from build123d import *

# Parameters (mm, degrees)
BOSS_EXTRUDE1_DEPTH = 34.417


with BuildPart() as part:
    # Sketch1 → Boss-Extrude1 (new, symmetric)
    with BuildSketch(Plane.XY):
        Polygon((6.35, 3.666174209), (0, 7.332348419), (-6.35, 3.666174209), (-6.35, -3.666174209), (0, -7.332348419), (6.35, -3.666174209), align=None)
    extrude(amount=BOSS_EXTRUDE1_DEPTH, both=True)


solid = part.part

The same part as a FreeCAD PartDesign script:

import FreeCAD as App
import Part
import Sketcher
Q = App.Units.Quantity

doc = App.newDocument("Part")
body = doc.addObject("PartDesign::Body", "Body")

sketch1 = body.newObject("Sketcher::SketchObject", "Sketch")
sketch1.AttachmentSupport = (doc.getObject("XY_Plane"), [""])
sketch1.MapMode = "FlatFace"
sketch1.addGeometry(Part.LineSegment(App.Vector(6, 4, 0), App.Vector(0, 7, 0)), False)
sketch1.addGeometry(Part.LineSegment(App.Vector(0, 7, 0), App.Vector(-6, 4, 0)), False)
sketch1.addGeometry(Part.LineSegment(App.Vector(-6, 4, 0), App.Vector(-6, -4, 0)), False)
sketch1.addGeometry(Part.LineSegment(App.Vector(-6, -4, 0), App.Vector(0, -7, 0)), False)
sketch1.addGeometry(Part.LineSegment(App.Vector(0, -7, 0), App.Vector(6, -4, 0)), False)
sketch1.addGeometry(Part.LineSegment(App.Vector(6, -4, 0), App.Vector(6, 4, 0)), False)
sketch1.addConstraint(Sketcher.Constraint("Coincident", 0, 2, 1, 1))
sketch1.addConstraint(Sketcher.Constraint("Coincident", 1, 2, 2, 1))
sketch1.addConstraint(Sketcher.Constraint("Coincident", 2, 2, 3, 1))
sketch1.addConstraint(Sketcher.Constraint("Coincident", 3, 2, 4, 1))
sketch1.addConstraint(Sketcher.Constraint("Coincident", 4, 2, 5, 1))
sketch1.addConstraint(Sketcher.Constraint("Coincident", 5, 2, 0, 1))
sketch1.addConstraint(Sketcher.Constraint("Vertical", 2))
sketch1.addConstraint(Sketcher.Constraint("Vertical", 5))
sketch1.addConstraint(Sketcher.Constraint("Symmetric", 0, 2, 3, 2, -1, 1))
sketch1.addConstraint(Sketcher.Constraint("Symmetric", 1, 2, 4, 2, -1, 1))
sketch1.addConstraint(Sketcher.Constraint("PointOnObject", 0, 2, -2))
sketch1.addConstraint(Sketcher.Constraint("Parallel", 0, 3))
sketch1.addConstraint(Sketcher.Constraint("Horizontal", 2, 2, 4, 2))
sketch1.addConstraint(Sketcher.Constraint("Angle", 0, Q("150 deg")))
sketch1.addConstraint(Sketcher.Constraint("DistanceX", 2, 2, 4, 2, Q("0.5 in")))
sketch1.addConstraint(Sketcher.Constraint("DistanceY", 2, 2, 2, 1, 7.332348))
pad1 = body.newObject("PartDesign::Pad", "Pad")
pad1.Profile = sketch1
pad1.Length = Q("2.71 in")
pad1.Midplane = True

doc.recompute()
